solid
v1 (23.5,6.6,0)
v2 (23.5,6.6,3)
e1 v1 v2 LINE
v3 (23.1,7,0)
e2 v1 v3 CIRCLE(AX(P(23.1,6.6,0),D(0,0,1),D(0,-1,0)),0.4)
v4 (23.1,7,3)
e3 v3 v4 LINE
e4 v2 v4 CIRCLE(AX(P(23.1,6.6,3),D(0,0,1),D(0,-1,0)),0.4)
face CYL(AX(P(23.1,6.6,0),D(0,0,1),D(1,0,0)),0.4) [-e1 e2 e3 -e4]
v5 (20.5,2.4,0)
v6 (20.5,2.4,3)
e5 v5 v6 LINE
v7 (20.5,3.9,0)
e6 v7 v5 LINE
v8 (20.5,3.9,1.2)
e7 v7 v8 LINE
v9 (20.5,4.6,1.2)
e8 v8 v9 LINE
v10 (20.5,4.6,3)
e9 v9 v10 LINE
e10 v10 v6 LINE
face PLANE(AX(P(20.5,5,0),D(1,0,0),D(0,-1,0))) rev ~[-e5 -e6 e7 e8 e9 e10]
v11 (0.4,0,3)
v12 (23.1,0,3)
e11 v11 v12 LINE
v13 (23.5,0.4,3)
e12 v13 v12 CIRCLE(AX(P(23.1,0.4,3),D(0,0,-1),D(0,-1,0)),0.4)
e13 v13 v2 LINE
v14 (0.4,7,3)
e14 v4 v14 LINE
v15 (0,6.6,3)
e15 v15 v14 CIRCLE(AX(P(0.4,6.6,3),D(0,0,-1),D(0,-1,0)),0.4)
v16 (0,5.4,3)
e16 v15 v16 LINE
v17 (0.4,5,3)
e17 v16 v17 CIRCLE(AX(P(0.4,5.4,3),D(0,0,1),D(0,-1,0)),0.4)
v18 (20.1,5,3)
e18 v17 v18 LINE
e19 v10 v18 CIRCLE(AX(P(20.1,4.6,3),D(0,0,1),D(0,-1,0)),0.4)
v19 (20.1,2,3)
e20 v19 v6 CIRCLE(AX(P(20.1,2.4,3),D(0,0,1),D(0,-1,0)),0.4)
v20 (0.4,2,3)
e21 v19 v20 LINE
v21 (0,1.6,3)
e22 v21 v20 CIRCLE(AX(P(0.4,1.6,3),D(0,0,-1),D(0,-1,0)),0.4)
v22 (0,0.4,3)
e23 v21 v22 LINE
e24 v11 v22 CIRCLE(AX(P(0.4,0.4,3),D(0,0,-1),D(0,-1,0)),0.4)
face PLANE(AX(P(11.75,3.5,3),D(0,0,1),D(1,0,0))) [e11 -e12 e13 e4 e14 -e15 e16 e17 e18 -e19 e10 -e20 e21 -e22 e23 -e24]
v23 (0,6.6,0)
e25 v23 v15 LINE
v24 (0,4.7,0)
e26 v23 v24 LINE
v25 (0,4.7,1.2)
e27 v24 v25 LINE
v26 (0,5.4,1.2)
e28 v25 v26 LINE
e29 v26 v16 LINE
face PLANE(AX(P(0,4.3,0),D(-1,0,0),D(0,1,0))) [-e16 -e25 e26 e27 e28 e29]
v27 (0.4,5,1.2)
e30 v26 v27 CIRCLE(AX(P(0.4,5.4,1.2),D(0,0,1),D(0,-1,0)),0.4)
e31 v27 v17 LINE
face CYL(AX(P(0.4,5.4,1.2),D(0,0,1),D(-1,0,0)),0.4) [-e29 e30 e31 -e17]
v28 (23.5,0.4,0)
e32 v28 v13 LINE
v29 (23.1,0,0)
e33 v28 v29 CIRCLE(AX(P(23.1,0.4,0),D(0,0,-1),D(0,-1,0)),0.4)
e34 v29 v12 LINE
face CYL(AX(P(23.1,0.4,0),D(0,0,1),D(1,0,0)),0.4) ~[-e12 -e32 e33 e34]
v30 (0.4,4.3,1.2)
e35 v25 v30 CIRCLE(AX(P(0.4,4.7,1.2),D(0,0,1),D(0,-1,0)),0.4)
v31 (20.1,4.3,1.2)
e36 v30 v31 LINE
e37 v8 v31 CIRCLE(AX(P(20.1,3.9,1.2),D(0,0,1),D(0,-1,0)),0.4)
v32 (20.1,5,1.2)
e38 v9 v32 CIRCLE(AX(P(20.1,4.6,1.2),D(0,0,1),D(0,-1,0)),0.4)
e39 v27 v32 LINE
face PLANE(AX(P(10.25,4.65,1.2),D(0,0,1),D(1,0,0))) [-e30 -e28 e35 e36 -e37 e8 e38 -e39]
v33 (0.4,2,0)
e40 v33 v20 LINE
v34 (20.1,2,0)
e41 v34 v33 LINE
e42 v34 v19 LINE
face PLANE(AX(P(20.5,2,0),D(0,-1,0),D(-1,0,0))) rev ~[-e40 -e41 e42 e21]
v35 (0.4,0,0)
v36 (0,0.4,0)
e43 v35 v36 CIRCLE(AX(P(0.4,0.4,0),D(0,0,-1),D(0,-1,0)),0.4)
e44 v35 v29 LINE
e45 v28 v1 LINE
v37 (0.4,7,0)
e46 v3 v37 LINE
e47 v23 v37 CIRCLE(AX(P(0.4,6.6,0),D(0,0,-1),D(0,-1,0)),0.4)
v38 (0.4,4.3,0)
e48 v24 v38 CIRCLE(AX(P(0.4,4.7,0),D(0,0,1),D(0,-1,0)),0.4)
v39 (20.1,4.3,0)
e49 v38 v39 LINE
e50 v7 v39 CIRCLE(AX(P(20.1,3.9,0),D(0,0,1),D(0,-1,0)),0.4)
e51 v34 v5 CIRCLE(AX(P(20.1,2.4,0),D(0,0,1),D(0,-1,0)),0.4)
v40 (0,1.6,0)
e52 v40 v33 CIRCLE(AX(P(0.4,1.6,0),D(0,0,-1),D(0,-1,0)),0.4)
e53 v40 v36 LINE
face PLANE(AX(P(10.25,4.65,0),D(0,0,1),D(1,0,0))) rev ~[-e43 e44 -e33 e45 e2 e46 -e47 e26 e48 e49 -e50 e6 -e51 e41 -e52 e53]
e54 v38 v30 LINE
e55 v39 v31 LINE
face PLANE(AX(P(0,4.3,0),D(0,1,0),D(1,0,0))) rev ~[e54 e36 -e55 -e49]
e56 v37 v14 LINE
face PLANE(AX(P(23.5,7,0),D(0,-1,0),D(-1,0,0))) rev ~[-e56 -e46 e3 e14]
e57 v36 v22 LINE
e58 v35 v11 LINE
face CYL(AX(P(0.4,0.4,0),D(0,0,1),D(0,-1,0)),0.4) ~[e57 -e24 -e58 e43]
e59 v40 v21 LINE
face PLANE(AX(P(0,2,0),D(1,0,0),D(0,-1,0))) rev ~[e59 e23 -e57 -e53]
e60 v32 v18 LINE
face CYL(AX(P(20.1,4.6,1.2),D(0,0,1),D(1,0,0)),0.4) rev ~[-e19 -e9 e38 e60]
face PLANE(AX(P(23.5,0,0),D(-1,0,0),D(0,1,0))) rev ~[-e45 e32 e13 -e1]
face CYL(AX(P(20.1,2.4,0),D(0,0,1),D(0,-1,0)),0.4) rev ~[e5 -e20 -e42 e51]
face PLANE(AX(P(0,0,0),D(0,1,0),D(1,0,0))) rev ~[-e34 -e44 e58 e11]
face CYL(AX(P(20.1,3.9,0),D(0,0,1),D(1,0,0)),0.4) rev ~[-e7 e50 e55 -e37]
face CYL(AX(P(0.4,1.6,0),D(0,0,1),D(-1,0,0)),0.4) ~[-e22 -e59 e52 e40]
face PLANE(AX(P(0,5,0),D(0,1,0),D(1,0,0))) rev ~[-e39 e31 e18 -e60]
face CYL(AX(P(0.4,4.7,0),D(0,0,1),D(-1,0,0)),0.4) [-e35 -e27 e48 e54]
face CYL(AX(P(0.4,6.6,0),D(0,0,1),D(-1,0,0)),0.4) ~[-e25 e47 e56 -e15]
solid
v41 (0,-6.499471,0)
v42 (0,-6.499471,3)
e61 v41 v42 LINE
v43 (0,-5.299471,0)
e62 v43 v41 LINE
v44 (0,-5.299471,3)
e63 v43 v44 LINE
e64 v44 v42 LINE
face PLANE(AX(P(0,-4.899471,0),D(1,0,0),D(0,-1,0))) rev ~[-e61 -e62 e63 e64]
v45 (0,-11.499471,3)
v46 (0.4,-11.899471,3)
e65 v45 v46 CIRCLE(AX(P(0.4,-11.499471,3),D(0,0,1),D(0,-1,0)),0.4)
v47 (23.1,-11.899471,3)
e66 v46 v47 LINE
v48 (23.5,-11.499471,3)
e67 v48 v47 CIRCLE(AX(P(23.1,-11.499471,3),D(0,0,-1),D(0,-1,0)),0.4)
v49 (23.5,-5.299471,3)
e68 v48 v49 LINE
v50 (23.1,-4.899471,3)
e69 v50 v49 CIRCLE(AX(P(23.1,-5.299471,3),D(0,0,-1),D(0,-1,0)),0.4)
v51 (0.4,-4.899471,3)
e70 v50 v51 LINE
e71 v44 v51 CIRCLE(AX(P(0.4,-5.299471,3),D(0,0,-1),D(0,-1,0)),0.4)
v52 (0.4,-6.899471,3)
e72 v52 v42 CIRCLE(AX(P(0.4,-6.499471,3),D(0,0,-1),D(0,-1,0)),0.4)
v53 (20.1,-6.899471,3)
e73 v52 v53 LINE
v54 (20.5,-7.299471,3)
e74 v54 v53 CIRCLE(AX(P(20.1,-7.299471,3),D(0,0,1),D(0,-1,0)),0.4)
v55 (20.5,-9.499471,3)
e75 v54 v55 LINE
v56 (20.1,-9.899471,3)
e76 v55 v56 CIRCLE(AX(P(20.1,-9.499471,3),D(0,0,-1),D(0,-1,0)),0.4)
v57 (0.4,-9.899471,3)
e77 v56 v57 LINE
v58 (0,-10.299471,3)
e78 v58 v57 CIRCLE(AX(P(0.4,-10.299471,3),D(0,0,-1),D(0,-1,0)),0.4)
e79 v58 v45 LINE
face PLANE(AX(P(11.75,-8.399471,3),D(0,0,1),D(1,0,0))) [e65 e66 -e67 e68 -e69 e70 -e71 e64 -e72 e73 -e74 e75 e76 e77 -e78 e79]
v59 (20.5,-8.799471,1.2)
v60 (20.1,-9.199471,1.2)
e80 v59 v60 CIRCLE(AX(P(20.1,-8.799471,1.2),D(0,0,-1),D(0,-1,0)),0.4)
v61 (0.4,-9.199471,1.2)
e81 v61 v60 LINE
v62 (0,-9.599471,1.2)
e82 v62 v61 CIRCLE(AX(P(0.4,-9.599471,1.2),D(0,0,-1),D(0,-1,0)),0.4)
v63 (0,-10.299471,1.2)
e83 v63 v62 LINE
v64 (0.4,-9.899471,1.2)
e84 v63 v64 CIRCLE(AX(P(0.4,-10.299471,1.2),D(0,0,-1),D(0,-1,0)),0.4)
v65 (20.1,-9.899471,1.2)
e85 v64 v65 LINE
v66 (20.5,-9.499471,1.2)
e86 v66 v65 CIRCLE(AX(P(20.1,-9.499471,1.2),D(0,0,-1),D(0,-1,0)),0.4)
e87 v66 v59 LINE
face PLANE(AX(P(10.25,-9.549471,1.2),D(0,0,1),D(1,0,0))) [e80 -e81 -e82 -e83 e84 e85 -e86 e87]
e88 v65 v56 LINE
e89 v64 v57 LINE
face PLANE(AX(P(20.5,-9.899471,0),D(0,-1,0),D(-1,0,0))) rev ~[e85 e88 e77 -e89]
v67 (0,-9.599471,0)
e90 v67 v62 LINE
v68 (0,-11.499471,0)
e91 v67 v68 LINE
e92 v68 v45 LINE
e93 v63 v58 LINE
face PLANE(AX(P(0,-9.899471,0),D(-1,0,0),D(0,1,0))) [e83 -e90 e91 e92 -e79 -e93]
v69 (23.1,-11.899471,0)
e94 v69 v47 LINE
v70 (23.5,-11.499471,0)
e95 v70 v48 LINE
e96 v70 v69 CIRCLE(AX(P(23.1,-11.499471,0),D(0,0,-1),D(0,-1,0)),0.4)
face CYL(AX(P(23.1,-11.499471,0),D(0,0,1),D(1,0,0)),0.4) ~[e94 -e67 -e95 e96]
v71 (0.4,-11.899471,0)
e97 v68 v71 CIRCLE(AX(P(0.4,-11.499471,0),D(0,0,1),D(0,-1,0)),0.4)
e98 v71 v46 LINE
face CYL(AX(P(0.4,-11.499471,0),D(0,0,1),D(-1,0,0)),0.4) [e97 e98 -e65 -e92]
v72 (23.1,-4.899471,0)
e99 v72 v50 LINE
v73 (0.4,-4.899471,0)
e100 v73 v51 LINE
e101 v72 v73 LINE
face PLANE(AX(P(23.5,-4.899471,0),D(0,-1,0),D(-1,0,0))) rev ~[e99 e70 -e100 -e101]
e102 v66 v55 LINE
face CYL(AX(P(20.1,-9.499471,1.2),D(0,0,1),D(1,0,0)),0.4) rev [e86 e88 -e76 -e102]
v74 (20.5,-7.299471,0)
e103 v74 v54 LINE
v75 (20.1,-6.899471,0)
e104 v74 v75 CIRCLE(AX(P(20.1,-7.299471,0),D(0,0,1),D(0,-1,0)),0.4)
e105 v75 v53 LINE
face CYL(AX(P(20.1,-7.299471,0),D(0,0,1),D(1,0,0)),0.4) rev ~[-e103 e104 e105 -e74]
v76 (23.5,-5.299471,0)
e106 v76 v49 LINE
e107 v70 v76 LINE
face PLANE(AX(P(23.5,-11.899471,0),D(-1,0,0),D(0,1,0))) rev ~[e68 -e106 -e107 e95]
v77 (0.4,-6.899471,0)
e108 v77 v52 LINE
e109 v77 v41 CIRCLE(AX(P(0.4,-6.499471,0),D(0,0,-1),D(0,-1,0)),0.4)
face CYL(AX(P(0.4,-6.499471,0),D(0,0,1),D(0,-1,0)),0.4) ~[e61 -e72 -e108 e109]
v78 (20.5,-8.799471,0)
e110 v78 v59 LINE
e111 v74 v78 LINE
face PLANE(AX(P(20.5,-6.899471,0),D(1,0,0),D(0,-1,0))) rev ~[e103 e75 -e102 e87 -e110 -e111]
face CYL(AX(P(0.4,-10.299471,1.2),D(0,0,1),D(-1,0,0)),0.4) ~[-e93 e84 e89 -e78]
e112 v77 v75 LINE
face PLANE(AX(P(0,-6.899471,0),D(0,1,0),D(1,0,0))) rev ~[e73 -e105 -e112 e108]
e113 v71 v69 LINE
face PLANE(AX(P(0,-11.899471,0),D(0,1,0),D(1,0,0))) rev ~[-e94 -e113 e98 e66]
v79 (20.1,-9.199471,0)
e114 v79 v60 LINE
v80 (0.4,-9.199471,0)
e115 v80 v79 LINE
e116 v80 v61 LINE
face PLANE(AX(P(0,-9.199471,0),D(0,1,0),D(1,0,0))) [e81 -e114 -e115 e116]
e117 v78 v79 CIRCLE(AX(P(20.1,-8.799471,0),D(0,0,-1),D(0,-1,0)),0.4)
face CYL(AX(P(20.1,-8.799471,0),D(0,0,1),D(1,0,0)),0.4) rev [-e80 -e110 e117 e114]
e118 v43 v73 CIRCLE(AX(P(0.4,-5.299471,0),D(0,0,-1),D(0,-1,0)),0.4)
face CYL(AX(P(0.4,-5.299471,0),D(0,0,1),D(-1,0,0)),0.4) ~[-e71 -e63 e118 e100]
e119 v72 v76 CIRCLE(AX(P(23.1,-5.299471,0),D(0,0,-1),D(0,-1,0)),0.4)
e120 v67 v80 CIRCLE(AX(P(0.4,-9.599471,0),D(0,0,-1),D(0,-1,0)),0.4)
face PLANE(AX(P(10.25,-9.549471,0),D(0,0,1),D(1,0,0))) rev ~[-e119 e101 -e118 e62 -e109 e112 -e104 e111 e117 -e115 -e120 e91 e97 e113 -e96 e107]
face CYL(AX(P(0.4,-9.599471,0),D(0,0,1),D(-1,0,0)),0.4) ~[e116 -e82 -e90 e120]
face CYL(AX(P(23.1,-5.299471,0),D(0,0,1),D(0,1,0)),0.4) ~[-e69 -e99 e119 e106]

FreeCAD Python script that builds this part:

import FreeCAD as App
import Part
import Sketcher
from FreeCAD import Vector


def edges_at(feature, points):
    """Names of the edges that pass closest to the given points."""
    edges = feature.Shape.Edges
    near = lambda p: min(range(len(edges)), key=lambda i: edges[i].distToShape(Part.Vertex(*p))[0])
    return sorted({f"Edge{near(p) + 1}" for p in points})


def add_polygon(sketch, points):
    """Adds a closed chain of lines whose ends are joined by coincident constraints."""
    first, n = sketch.GeometryCount, len(points)
    for a, b in zip(points, points[1:] + points[:1]):
        sketch.addGeometry(Part.LineSegment(App.Vector(*a, 0), App.Vector(*b, 0)), False)
    for i in range(n):
        sketch.addConstraint(Sketcher.Constraint("Coincident", first + i, 2, first + (i + 1) % n, 1))

doc = App.newDocument("Part")
body = doc.addObject("PartDesign::Body", "Body")

# Sketch on XY plane
sketch1 = body.newObject("Sketcher::SketchObject", "Sketch")
sketch1.AttachmentSupport = (doc.getObject("XY_Plane"), [""])
sketch1.MapMode = "FlatFace"
add_polygon(sketch1, [(0, 2), (0, 0), (23.5, 0), (23.5, 7), (0, 7), (0, 5), (20.5, 5), (20.5, 2)])  # lines 0-7
sketch1.addConstraint([
    Sketcher.Constraint("Vertical", 0),
    Sketcher.Constraint("Horizontal", 1),
    Sketcher.Constraint("Vertical", 2),
    Sketcher.Constraint("Horizontal", 3),
    Sketcher.Constraint("Vertical", 4),
    Sketcher.Constraint("Horizontal", 5),
    Sketcher.Constraint("Vertical", 6),
    Sketcher.Constraint("Horizontal", 7),
    Sketcher.Constraint("Coincident", 0, 2, -1, 1),
    Sketcher.Constraint("PointOnObject", 3, 2, -2),
    Sketcher.Constraint("Equal", 0, 4),
    Sketcher.Constraint("DistanceY", 0, 2, 0, 1, 2.0),
    Sketcher.Constraint("DistanceY", 2, 1, 2, 2, 7.0),
    Sketcher.Constraint("DistanceX", 1, 1, 1, 2, 23.5),
    Sketcher.Constraint("DistanceX", 5, 1, 5, 2, 20.5),
])
pad1 = body.newObject("PartDesign::Pad", "Pad")
pad1.Profile = sketch1
pad1.Length = 3
body2 = doc.addObject("PartDesign::Body", "Body001")

# Sketch on XY plane
sketch2 = body2.newObject("Sketcher::SketchObject", "Sketch001")
sketch2.AttachmentSupport = (doc.getObject("XY_Plane001"), [""])
sketch2.MapMode = "FlatFace"
add_polygon(sketch2, [(20.5, -9.9), (0, -9.9), (0, -11.9), (23.5, -11.9), (23.5, -4.9), (0, -4.9), (0, -6.9), (20.5, -6.9)])  # lines 0-7
sketch2.addConstraint([
    Sketcher.Constraint("Horizontal", 0),
    Sketcher.Constraint("Vertical", 1),
    Sketcher.Constraint("Horizontal", 2),
    Sketcher.Constraint("Vertical", 3),
    Sketcher.Constraint("Horizontal", 4),
    Sketcher.Constraint("Vertical", 5),
    Sketcher.Constraint("Horizontal", 6),
    Sketcher.Constraint("Vertical", 7),
    Sketcher.Constraint("PointOnObject", 0, 2, -2),
    Sketcher.Constraint("PointOnObject", 4, 2, -2),
    Sketcher.Constraint("Equal", 1, 5),
    Sketcher.Constraint("DistanceY", 1, 2, 1, 1, 2.0),
    Sketcher.Constraint("DistanceY", 3, 1, 3, 2, 7.0),
    Sketcher.Constraint("DistanceX", 0, 2, 0, 1, 20.5),
    Sketcher.Constraint("DistanceX", 2, 1, 2, 2, 23.5),
    Sketcher.Constraint("DistanceY", 0, 2, -1, 1, 9.899471),
])
pad2 = body2.newObject("PartDesign::Pad", "Pad001")
pad2.Profile = sketch2
pad2.Length = 3
body.AllowCompound = True
doc.recompute()

boolean = body.newObject("PartDesign::Boolean", "Boolean")
boolean.Type = "Fuse"
boolean.addObjects([body2])

# Sketch on XY plane
sketch3 = body.newObject("Sketcher::SketchObject", "Sketch002")
sketch3.AttachmentSupport = (doc.getObject("XY_Plane"), [""])
sketch3.MapMode = "FlatFace"
add_polygon(sketch3, [(0, -9.2), (0, -9.9), (20.5, -9.9), (20.5, -9.2)])  # lines 0-3
add_polygon(sketch3, [(0, 5), (0, 4.3), (20.5, 4.3), (20.5, 5)])  # lines 4-7
sketch3.addConstraint([
    Sketcher.Constraint("Vertical", 0),
    Sketcher.Constraint("Horizontal", 1),
    Sketcher.Constraint("Vertical", 2),
    Sketcher.Constraint("Horizontal", 3),
    Sketcher.Constraint("Vertical", 4),
    Sketcher.Constraint("Horizontal", 5),
    Sketcher.Constraint("Vertical", 6),
    Sketcher.Constraint("Horizontal", 7),
    Sketcher.Constraint("PointOnObject", 0, 2, -2),
    Sketcher.Constraint("PointOnObject", 4, 2, -2),
    Sketcher.Constraint("Vertical", 2, 2, 5, 2),
    Sketcher.Constraint("Equal", 2, 4),
    Sketcher.Constraint("DistanceX", 1, 1, 1, 2, 20.5),
    Sketcher.Constraint("DistanceY", 0, 2, 0, 1, 0.7),
    Sketcher.Constraint("DistanceY", -1, 1, 6, 2, 5.0),
    Sketcher.Constraint("DistanceY", 0, 2, -1, 1, 9.899471),
])
pad3 = body.newObject("PartDesign::Pad", "Pad002")
pad3.Profile = sketch3
pad3.Length = 1.2
doc.recompute()

fillet = body.newObject("PartDesign::Fillet", "Fillet")
fillet.Base = (pad3, edges_at(pad3, [
    (0, 5, 2.1),
    (0, 7, 1.5),
    (23.5, 7, 1.5),
    (23.5, 0, 1.5),
    (0, 0, 1.5),
    (0, 2, 1.5),
    (20.5, 2, 1.5),
    (20.5, 5, 2.1),
    (0, 4.3, 0.6),
    (20.5, 4.3, 0.6),
]))
fillet.Radius = 0.4
doc.recompute()

fillet2 = body.newObject("PartDesign::Fillet", "Fillet001")
fillet2.Base = (fillet, edges_at(fillet, [
    (23.5, -4.899, 1.5),
    (23.5, -11.899, 1.5),
    (0, -11.899, 1.5),
    (0, -9.899, 2.1),
    (20.5, -9.899, 2.1),
    (20.5, -6.899, 1.5),
    (0, -6.899, 1.5),
    (0, -4.899, 1.5),
    (0, -9.199, 0.6),
    (20.5, -9.199, 0.6),
]))
fillet2.Radius = 0.4

doc.recompute()
